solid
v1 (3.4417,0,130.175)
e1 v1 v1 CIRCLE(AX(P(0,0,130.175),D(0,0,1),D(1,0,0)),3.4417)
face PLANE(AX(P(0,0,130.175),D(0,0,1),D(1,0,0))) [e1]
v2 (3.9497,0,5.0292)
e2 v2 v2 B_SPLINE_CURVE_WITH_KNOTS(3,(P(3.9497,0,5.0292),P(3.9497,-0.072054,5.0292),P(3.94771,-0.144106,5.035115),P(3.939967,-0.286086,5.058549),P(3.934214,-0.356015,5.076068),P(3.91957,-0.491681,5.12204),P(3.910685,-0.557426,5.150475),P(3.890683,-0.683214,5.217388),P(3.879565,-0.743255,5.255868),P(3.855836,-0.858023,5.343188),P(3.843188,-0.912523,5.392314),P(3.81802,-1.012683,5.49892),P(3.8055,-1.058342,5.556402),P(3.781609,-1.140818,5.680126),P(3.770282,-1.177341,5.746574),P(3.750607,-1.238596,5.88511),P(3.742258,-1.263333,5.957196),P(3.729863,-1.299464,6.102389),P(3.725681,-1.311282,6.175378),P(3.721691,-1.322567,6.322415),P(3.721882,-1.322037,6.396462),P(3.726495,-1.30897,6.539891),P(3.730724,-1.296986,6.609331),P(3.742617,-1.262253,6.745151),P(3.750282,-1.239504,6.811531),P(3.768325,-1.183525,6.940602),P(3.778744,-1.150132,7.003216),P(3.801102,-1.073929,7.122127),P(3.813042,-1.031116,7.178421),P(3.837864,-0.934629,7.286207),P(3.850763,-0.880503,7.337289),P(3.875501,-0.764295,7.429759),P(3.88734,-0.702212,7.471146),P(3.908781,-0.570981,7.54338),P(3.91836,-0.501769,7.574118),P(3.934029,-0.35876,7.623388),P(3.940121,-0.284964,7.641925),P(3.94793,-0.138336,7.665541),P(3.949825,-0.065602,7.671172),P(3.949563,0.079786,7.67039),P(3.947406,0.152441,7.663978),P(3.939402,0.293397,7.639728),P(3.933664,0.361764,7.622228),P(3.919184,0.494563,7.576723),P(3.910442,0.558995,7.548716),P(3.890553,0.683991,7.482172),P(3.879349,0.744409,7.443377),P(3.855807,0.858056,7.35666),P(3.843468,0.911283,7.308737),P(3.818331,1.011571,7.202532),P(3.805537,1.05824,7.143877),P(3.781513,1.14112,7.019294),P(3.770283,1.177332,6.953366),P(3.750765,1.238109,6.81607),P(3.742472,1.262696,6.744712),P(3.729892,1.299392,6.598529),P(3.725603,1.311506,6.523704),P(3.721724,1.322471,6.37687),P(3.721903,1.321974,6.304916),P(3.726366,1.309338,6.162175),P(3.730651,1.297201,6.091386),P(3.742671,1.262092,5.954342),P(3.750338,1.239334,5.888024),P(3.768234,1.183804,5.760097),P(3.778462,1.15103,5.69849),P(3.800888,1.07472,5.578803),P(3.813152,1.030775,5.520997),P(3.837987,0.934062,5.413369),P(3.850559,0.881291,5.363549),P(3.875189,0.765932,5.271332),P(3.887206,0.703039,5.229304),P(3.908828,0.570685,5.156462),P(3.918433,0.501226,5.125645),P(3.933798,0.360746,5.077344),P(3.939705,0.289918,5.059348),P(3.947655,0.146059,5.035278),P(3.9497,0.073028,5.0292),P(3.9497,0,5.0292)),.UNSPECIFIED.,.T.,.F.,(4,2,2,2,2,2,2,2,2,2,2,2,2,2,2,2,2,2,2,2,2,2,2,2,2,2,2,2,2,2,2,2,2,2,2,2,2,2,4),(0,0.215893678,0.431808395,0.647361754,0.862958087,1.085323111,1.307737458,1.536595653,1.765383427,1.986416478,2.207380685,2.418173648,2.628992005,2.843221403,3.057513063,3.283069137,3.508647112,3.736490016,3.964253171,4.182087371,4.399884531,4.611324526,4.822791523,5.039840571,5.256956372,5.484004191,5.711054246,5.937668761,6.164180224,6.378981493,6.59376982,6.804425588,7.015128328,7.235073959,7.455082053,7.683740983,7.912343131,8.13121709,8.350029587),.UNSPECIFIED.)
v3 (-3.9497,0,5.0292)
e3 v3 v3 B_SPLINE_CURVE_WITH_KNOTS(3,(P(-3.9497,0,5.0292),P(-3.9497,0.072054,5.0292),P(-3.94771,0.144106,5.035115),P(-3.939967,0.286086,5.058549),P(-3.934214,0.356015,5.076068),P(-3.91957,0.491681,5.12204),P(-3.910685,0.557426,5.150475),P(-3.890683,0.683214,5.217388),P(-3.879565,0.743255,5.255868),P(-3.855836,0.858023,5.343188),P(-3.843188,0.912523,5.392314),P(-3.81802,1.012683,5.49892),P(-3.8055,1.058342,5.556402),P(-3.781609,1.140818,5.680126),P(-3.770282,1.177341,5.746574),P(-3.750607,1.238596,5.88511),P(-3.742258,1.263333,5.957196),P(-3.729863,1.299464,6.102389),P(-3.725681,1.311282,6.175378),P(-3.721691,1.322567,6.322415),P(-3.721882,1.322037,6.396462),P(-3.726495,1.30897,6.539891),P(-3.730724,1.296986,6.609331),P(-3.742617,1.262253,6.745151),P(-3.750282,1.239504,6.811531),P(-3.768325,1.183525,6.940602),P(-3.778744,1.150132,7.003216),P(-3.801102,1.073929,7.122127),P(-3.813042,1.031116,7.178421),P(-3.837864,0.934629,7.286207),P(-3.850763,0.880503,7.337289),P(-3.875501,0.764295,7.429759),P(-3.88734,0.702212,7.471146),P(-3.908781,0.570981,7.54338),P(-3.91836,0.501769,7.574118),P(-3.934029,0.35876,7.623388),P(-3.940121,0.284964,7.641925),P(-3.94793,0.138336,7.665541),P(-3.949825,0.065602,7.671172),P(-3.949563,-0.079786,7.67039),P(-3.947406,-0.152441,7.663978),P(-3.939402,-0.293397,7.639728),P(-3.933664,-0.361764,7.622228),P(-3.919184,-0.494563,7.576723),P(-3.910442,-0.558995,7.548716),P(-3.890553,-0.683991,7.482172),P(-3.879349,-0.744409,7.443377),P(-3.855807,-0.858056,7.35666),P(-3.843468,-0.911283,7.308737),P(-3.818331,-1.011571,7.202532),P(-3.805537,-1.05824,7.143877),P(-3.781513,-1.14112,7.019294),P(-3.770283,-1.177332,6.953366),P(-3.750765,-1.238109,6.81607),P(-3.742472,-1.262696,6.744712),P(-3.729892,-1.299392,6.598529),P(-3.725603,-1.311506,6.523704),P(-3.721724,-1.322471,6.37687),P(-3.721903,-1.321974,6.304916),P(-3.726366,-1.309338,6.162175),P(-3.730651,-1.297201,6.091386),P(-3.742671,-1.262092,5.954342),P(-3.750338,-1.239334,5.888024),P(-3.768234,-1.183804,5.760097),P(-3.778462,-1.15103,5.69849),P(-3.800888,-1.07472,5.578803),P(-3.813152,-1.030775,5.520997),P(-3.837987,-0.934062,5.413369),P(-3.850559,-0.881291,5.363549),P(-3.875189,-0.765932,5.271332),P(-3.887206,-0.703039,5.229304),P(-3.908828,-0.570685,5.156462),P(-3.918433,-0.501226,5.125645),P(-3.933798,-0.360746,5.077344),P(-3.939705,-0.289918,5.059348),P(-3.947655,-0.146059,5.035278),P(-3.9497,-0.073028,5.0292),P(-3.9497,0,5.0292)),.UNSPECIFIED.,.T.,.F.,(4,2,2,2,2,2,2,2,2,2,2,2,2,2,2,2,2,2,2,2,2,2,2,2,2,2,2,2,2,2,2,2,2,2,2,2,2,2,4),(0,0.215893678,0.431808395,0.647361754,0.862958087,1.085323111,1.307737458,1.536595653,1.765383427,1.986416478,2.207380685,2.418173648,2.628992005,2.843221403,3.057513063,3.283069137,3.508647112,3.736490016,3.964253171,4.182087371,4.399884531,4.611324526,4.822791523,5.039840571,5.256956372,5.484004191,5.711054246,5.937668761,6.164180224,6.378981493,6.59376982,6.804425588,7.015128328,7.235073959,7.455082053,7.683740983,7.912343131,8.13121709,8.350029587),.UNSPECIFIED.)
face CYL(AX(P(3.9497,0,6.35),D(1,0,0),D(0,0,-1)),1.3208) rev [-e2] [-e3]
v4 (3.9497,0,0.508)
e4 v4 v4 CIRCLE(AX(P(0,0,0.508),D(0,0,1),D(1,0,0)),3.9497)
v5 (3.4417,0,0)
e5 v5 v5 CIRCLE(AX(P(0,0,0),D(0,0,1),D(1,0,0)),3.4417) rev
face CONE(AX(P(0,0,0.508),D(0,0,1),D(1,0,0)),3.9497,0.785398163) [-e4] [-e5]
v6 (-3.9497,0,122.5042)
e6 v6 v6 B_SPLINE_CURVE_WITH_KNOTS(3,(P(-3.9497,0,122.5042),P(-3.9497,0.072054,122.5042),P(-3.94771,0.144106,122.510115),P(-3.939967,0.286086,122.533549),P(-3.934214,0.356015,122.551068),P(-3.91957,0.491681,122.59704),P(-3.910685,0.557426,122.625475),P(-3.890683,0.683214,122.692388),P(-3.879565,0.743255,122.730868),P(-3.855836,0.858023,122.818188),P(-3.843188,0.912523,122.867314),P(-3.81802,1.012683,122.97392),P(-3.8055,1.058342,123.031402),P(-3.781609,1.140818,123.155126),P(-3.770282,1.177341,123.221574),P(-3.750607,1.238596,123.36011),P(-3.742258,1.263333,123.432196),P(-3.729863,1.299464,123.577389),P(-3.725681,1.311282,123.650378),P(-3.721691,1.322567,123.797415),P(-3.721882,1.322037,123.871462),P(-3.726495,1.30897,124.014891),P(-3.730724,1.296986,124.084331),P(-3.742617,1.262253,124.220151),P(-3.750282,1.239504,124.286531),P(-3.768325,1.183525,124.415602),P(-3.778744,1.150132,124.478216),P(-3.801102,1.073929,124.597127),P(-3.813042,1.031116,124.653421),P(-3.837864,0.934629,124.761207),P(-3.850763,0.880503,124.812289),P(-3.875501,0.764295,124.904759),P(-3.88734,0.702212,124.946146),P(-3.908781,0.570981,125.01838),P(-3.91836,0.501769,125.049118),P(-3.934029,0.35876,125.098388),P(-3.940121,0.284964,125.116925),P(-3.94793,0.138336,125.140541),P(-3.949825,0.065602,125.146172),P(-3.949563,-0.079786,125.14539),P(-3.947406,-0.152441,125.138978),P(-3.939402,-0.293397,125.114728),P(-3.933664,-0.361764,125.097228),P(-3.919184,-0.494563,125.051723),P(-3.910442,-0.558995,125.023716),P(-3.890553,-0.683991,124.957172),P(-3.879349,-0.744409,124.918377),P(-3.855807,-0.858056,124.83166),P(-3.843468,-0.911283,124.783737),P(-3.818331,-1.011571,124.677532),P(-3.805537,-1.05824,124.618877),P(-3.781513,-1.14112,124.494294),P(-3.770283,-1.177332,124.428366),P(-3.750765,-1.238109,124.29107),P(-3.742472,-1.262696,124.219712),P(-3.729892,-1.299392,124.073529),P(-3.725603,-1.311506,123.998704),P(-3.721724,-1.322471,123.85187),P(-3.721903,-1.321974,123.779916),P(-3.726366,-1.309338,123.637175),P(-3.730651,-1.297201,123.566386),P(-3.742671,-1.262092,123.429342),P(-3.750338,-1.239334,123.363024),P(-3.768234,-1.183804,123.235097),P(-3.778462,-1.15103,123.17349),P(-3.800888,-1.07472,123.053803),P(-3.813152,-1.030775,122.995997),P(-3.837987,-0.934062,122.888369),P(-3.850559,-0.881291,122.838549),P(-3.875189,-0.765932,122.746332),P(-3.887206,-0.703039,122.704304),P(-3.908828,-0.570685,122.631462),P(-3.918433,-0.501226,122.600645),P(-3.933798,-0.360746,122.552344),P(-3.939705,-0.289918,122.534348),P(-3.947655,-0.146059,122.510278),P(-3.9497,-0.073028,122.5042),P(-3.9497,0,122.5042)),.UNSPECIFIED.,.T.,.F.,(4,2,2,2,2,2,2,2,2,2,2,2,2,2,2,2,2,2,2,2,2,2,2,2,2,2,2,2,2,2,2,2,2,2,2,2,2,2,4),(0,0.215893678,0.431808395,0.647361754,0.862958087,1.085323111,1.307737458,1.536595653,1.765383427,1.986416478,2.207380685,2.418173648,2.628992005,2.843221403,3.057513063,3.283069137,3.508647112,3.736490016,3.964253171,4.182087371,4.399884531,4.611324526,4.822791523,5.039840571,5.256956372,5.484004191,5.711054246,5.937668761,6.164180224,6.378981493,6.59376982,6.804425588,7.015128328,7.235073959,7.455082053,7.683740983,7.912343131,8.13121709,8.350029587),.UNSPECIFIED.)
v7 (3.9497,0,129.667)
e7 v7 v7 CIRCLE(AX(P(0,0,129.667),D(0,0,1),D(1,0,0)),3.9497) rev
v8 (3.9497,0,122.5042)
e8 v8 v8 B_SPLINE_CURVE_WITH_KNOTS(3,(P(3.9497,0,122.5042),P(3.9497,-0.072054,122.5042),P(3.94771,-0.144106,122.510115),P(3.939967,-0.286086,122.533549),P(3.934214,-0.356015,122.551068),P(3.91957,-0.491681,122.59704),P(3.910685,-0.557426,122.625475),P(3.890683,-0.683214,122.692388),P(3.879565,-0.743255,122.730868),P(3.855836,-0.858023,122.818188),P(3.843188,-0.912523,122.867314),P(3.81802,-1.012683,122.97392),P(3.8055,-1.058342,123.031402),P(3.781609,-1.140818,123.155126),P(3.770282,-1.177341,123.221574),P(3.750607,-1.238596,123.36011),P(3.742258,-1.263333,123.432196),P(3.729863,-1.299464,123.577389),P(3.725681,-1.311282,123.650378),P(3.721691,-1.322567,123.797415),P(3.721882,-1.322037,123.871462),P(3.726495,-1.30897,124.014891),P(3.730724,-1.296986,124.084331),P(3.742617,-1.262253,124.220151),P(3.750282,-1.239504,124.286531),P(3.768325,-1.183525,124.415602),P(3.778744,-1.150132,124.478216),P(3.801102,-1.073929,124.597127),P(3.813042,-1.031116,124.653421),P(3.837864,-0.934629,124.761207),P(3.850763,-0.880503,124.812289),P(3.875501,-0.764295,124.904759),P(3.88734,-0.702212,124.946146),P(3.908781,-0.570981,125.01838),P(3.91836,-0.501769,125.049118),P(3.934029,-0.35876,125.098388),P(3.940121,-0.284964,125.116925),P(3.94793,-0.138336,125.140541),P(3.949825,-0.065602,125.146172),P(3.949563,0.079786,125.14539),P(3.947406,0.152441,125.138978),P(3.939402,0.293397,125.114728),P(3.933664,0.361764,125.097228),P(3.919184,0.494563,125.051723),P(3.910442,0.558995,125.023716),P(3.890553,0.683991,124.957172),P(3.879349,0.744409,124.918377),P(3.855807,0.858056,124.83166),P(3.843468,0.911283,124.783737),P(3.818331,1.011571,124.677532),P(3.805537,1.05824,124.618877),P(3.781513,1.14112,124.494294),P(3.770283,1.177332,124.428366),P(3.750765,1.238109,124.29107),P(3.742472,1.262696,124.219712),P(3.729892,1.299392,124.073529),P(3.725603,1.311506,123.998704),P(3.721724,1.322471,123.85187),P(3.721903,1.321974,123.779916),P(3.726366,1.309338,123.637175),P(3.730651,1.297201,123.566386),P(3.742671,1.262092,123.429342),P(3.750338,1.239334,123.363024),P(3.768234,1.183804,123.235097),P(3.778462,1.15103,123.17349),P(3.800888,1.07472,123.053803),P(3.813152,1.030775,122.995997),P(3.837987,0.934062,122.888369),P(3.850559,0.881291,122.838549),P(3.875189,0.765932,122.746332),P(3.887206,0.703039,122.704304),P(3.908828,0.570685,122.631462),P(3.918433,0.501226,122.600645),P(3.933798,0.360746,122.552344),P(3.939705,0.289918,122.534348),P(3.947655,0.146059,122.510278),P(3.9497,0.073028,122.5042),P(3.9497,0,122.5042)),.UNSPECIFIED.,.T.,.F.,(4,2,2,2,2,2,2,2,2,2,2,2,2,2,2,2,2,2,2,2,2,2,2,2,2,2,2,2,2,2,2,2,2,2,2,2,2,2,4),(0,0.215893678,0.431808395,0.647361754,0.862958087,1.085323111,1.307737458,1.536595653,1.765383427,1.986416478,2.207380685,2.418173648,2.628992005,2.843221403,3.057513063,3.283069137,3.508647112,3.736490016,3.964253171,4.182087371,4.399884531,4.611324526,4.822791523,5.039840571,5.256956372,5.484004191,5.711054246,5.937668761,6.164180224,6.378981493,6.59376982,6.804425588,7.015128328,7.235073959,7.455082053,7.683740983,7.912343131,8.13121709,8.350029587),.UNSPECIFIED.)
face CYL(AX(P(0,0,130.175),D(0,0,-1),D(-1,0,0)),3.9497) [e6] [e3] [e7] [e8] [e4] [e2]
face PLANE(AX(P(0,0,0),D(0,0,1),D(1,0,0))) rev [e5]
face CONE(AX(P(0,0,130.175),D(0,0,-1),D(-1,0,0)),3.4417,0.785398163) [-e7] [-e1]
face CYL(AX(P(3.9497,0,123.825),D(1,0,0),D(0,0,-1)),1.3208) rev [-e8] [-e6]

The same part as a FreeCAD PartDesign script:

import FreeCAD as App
import Part
import Sketcher

V = App.Vector
Q = App.Units.Quantity


def edges_at(feature, points):
    """Names of the edges that pass closest to the given points."""
    edges = feature.Shape.Edges
    near = lambda p: min(range(len(edges)), key=lambda i: edges[i].distToShape(Part.Vertex(*p))[0])
    return sorted({f"Edge{near(p) + 1}" for p in points})

doc = App.newDocument("Part")
params = doc.addObject("Spreadsheet::Sheet", "Params")
for row, (alias, value) in enumerate([
    ("sketch1_diameter", "0.311 in"),
    ("pad1_length", "5.125 in"),
    ("sketch2_diameter", "0.104 in"),
    ("hole_diameter", "0.104 in"),
    ("chamfer_size", "0.02 in"),
], start=1):
    params.set(f"A{row}", alias)
    params.set(f"B{row}", "=" + value)
    params.setAlias(f"B{row}", alias)

body = doc.addObject("PartDesign::Body", "Body")

# Sketch on XY plane
sketch1 = doc.addObject("Sketcher::SketchObject", "Sketch")
body.addObject(sketch1)
sketch1.AttachmentSupport = (doc.XY_Plane, [""])
sketch1.MapMode = "FlatFace"
sketch1.addGeometry(Part.Circle(V(0, 0, 0), V(0, 0, 1), 3.9497), False)
sketch1.addConstraint([
    Sketcher.Constraint("Coincident", 0, 3, -1, 1),
    Sketcher.Constraint("Diameter", 0, Q("0.311 in")),
])
sketch1.setExpression("Constraints[1]", "Params.sketch1_diameter")
pad1 = doc.addObject("PartDesign::Pad", "Pad")
body.addObject(pad1)
pad1.Profile = sketch1
pad1.setExpression("Length", "Params.pad1_length")

# Sketch on YZ plane
sketch2 = doc.addObject("Sketcher::SketchObject", "Sketch001")
body.addObject(sketch2)
sketch2.AttachmentSupport = (doc.YZ_Plane, [""])
sketch2.MapMode = "FlatFace"
sketch2.AttachmentOffset = App.Placement(V(0, 0, 0.1555 * 25.4), App.Rotation())
sketch2.addGeometry([
    Part.Circle(V(0, 6.35, 0), V(0, 0, 1), 1.3208),
    Part.Circle(V(0, 123.825, 0), V(0, 0, 1), 1.3208),
], False)
sketch2.addConstraint([
    Sketcher.Constraint("Equal", 0, 1),
    Sketcher.Constraint("PointOnObject", 0, 3, -2),
    Sketcher.Constraint("PointOnObject", 1, 3, -2),
    Sketcher.Constraint("Diameter", 0, Q("0.104 in")),
    Sketcher.Constraint("DistanceY", -1, 1, 0, 3, Q("0.25 in")),
    Sketcher.Constraint("DistanceY", -1, 1, 1, 3, Q("4.875 in")),
])
sketch2.setExpression("Constraints[3]", "Params.sketch2_diameter")
doc.recompute()
hole = doc.addObject("PartDesign::Hole", "Hole")
body.addObject(hole)
hole.Profile = sketch2
hole.ThreadType = "None"
hole.setExpression("Diameter", "Params.hole_diameter")
hole.DepthType = "ThroughAll"
doc.recompute()

chamfer = doc.addObject("PartDesign::Chamfer", "Chamfer")
body.addObject(chamfer)
chamfer.Base = (hole, edges_at(hole, [(-3.95, 0, 0), (-3.95, 0, 130.175)]))
chamfer.setExpression("Size", "Params.chamfer_size")

doc.recompute()
